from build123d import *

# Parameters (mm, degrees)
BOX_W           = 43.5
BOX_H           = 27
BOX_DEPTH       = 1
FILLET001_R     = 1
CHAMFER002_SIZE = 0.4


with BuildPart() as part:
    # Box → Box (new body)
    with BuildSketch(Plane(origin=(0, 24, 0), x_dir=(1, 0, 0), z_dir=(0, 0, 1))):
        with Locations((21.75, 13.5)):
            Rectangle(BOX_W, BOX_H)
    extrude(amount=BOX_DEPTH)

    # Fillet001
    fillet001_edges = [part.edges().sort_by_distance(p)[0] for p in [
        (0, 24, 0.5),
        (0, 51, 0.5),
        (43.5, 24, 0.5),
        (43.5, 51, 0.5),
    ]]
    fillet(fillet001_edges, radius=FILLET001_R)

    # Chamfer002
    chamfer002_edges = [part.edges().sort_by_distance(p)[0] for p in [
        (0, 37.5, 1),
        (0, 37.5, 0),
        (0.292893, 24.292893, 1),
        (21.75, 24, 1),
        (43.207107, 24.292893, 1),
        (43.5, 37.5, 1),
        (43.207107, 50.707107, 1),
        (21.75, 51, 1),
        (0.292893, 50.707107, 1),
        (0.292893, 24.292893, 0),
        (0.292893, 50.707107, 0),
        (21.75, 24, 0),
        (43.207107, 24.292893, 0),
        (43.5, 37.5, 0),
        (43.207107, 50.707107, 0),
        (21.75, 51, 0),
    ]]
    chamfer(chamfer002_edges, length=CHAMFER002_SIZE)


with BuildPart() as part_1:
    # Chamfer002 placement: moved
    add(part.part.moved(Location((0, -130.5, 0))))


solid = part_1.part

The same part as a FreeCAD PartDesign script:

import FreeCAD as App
import Part
import Sketcher
Q = App.Units.Quantity


def edges_at(feature, points):
    """Names of the edges that pass closest to the given points."""
    edges = feature.Shape.Edges
    near = lambda p: min(range(len(edges)), key=lambda i: edges[i].distToShape(Part.Vertex(*p))[0])
    return sorted({f"Edge{near(p) + 1}" for p in points})


def add_polygon(sketch, points):
    """Adds a closed chain of lines whose ends are joined by coincident constraints."""
    first, n = sketch.GeometryCount, len(points)
    for a, b in zip(points, points[1:] + points[:1]):
        sketch.addGeometry(Part.LineSegment(App.Vector(*a, 0), App.Vector(*b, 0)), False)
    for i in range(n):
        sketch.addConstraint(Sketcher.Constraint("Coincident", first + i, 2, first + (i + 1) % n, 1))

doc = App.newDocument("Part")
body = doc.addObject("PartDesign::Body", "Body")

# Sketch on XY plane
sketch1 = body.newObject("Sketcher::SketchObject", "Sketch")
sketch1.AttachmentSupport = (doc.getObject("XY_Plane"), [""])
sketch1.MapMode = "FlatFace"
add_polygon(sketch1, [(0, 51), (0, 24), (44, 24), (44, 51)])  # lines 0-3
sketch1.addConstraint(Sketcher.Constraint("Vertical", 0))
sketch1.addConstraint(Sketcher.Constraint("Horizontal", 1))
sketch1.addConstraint(Sketcher.Constraint("Vertical", 2))
sketch1.addConstraint(Sketcher.Constraint("Horizontal", 3))
sketch1.addConstraint(Sketcher.Constraint("PointOnObject", 0, 2, -2))
sketch1.addConstraint(Sketcher.Constraint("DistanceY", 0, 2, 0, 1, Q("27 mm")))
sketch1.addConstraint(Sketcher.Constraint("DistanceX", 1, 1, 1, 2, Q("43.5 mm")))
sketch1.addConstraint(Sketcher.Constraint("DistanceY", -1, 1, 0, 2, Q("24 mm")))
pad1 = body.newObject("PartDesign::Pad", "Pad")
pad1.Profile = sketch1
pad1.Length = 1
doc.recompute()

fillet = body.newObject("PartDesign::Fillet", "Fillet")
fillet.Base = (pad1, edges_at(pad1, [
    (0, 24, 0.5),
    (0, 51, 0.5),
    (43.5, 24, 0.5),
    (43.5, 51, 0.5),
]))
fillet.Radius = 1
doc.recompute()

chamfer = body.newObject("PartDesign::Chamfer", "Chamfer")
chamfer.Base = (fillet, edges_at(fillet, [
    (0, 37.5, 1),
    (0, 37.5, 0),
    (0.293, 24.293, 1),
    (21.75, 24, 1),
    (43.207, 24.293, 1),
    (43.5, 37.5, 1),
    (43.207, 50.707, 1),
    (21.75, 51, 1),
    (0.293, 50.707, 1),
    (0.293, 24.293, 0),
    (0.293, 50.707, 0),
    (21.75, 24, 0),
    (43.207, 24.293, 0),
    (43.5, 37.5, 0),
    (43.207, 50.707, 0),
    (21.75, 51, 0),
]))
chamfer.Size = 0.4
body2 = doc.addObject("PartDesign::Body", "Body001")
doc.recompute()

body.Placement = App.Placement(App.Vector(0, -130.5, 0), App.Rotation(App.Vector(0, 0, 1), 0))
boolean = body2.newObject("PartDesign::Boolean", "Boolean")
boolean.Type = "Fuse"
boolean.addObjects([body])

doc.recompute()
